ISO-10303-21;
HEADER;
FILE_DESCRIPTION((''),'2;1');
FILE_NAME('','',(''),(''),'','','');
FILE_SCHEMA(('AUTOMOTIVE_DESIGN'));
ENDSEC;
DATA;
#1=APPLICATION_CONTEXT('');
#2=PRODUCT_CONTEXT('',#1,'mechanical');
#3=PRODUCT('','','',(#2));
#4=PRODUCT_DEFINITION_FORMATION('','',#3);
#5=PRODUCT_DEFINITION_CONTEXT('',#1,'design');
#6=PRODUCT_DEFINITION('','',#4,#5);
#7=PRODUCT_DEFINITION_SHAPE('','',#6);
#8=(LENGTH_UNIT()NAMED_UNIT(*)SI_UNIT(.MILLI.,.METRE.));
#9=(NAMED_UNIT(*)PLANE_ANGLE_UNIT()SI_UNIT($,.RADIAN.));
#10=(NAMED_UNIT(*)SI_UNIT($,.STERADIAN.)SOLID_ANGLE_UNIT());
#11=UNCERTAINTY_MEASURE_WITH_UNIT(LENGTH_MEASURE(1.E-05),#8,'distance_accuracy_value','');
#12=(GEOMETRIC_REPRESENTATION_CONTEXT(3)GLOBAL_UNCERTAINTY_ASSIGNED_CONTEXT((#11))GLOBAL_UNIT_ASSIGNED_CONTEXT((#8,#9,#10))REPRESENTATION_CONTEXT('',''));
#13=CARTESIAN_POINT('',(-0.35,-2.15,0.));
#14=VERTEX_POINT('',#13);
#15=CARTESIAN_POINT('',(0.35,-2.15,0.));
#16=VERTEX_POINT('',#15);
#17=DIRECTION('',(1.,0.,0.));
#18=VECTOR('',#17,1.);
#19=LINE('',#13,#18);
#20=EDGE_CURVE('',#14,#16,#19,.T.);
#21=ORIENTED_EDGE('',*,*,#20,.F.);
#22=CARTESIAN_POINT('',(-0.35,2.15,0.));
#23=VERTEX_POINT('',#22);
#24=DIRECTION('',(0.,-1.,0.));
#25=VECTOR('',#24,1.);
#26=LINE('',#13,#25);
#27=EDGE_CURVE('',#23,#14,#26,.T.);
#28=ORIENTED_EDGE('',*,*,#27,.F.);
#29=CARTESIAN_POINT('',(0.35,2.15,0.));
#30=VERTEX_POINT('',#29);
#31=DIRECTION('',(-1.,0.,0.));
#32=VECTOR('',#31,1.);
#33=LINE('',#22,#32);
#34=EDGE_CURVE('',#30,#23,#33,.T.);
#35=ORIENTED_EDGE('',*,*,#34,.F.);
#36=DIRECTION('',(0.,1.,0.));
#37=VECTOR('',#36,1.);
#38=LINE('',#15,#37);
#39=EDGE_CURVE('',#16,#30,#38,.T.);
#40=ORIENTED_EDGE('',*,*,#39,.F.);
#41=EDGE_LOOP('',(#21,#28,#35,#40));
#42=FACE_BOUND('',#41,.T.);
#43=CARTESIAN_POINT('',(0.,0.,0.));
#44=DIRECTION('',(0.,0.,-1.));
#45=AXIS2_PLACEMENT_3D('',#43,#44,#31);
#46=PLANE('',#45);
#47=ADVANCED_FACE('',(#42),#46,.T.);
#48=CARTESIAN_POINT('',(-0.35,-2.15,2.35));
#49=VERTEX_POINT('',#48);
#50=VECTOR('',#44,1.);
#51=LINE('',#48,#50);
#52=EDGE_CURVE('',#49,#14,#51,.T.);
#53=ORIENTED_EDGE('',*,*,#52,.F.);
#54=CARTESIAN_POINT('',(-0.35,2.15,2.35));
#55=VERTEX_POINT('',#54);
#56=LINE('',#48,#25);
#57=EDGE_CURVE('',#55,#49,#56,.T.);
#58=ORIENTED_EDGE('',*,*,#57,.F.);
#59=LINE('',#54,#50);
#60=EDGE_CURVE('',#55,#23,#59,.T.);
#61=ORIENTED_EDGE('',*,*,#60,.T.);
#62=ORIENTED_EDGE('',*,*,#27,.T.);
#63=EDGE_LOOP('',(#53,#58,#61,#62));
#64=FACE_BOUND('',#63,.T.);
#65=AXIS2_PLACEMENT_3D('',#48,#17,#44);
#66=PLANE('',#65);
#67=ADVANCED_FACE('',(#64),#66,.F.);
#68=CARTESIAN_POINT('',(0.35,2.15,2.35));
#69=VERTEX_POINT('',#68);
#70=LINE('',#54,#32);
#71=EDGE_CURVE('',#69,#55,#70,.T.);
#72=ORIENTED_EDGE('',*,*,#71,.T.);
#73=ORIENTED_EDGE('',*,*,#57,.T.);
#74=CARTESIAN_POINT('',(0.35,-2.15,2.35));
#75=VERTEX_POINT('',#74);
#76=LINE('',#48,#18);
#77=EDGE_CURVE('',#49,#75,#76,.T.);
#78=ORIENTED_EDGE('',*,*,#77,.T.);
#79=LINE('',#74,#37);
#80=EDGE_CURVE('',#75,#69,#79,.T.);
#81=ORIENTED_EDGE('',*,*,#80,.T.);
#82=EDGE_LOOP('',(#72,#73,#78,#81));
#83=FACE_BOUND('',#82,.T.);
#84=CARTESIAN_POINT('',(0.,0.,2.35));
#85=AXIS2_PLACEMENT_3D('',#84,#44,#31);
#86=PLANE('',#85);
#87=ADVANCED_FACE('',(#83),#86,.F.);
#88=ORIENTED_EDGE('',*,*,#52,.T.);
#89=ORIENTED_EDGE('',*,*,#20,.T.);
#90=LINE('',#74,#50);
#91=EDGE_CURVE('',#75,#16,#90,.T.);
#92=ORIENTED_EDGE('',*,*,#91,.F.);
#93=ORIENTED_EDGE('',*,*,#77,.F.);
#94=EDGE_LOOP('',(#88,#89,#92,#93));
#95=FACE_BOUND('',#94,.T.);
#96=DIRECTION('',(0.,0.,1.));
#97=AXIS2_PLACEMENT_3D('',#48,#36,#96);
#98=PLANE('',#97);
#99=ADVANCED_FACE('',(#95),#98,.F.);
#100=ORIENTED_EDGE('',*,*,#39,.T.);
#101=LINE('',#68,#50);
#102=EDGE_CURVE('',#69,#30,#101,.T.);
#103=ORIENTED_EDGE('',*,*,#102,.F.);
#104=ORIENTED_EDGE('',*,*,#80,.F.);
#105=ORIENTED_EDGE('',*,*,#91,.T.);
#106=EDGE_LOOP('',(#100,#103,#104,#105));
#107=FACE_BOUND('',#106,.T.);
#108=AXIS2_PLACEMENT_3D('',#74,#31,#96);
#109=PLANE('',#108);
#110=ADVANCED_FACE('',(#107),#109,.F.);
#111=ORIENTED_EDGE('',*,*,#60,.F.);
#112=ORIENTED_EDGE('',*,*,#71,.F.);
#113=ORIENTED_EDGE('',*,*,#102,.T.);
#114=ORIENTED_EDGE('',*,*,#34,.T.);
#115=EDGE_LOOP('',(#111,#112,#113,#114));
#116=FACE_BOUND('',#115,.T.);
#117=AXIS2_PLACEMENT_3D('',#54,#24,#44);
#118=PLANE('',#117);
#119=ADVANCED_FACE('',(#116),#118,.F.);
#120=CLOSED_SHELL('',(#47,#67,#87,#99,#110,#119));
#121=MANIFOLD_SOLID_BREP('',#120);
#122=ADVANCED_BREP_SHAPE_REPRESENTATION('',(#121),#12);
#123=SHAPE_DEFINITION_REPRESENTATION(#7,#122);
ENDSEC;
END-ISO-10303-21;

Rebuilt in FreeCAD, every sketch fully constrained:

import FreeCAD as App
import Part
import Sketcher
from FreeCAD import Vector
Q = App.Units.Quantity

doc = App.newDocument("Part")
body = doc.addObject("PartDesign::Body", "Body")

# Sketch on XY plane
sketch1 = body.newObject("Sketcher::SketchObject", "Sketch")
sketch1.AttachmentSupport = (doc.getObject("XY_Plane"), [""])
sketch1.MapMode = "FlatFace"
sketch1.addGeometry([
    Part.LineSegment(Vector(-0.35, 2.15, 0), Vector(-0.35, -2.15, 0)),
    Part.LineSegment(Vector(-0.35, -2.15, 0), Vector(0.35, -2.15, 0)),
    Part.LineSegment(Vector(0.35, -2.15, 0), Vector(0.35, 2.15, 0)),
    Part.LineSegment(Vector(0.35, 2.15, 0), Vector(-0.35, 2.15, 0)),
], False)
sketch1.addConstraint([
    Sketcher.Constraint("Coincident", 0, 2, 1, 1),
    Sketcher.Constraint("Coincident", 1, 2, 2, 1),
    Sketcher.Constraint("Coincident", 2, 2, 3, 1),
    Sketcher.Constraint("Coincident", 3, 2, 0, 1),
    Sketcher.Constraint("Vertical", 0),
    Sketcher.Constraint("Horizontal", 1),
    Sketcher.Constraint("Vertical", 2),
    Sketcher.Constraint("Horizontal", 3),
    Sketcher.Constraint("Symmetric", 0, 2, 2, 2, -1, 1),
    Sketcher.Constraint("DistanceX", 1, 1, 1, 2, Q("0.7 mm")),
    Sketcher.Constraint("DistanceY", 0, 2, 0, 1, Q("4.3 mm")),
])
pad1 = body.newObject("PartDesign::Pad", "Pad")
pad1.Profile = sketch1
pad1.Length = 2.35

doc.recompute()
